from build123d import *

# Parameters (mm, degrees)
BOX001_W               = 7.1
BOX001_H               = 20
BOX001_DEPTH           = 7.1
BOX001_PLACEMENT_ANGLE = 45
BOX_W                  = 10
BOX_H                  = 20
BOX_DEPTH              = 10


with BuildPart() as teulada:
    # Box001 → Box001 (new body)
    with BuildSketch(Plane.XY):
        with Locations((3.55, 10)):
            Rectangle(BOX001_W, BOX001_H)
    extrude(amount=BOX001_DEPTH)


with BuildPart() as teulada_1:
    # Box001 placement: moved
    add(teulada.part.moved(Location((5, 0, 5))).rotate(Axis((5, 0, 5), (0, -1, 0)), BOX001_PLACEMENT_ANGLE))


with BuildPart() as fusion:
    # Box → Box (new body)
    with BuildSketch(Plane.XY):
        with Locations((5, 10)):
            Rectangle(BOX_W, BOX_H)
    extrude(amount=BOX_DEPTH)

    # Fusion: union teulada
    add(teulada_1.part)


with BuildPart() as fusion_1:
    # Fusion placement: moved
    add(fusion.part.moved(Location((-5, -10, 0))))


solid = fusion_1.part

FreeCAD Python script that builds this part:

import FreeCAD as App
import Part
import Sketcher
from FreeCAD import Vector

doc = App.newDocument("Part")
body = doc.addObject("PartDesign::Body", "Body")

sketch1 = doc.addObject("Sketcher::SketchObject", "Sketch")
body.addObject(sketch1)
sketch1.AttachmentSupport = (doc.XY_Plane, [""])
sketch1.MapMode = "FlatFace"
sketch1.addGeometry([
    Part.LineSegment(Vector(0, 20, 0), Vector(0, 0, 0)),
    Part.LineSegment(Vector(0, 0, 0), Vector(7.1, 0, 0)),
    Part.LineSegment(Vector(7.1, 0, 0), Vector(7.1, 20, 0)),
    Part.LineSegment(Vector(7.1, 20, 0), Vector(0, 20, 0)),
], False)
sketch1.addConstraint([
    Sketcher.Constraint("Coincident", 0, 2, 1, 1),
    Sketcher.Constraint("Coincident", 1, 2, 2, 1),
    Sketcher.Constraint("Coincident", 2, 2, 3, 1),
    Sketcher.Constraint("Coincident", 3, 2, 0, 1),
    Sketcher.Constraint("Vertical", 0),
    Sketcher.Constraint("Horizontal", 1),
    Sketcher.Constraint("Vertical", 2),
    Sketcher.Constraint("Horizontal", 3),
    Sketcher.Constraint("Coincident", 0, 2, -1, 1),
    Sketcher.Constraint("DistanceY", 0, 2, 0, 1, 20.0),
    Sketcher.Constraint("DistanceX", 1, 1, 1, 2, 7.1),
])
pad1 = doc.addObject("PartDesign::Pad", "Pad")
body.addObject(pad1)
pad1.Profile = sketch1
pad1.Length = 7.1
body2 = doc.addObject("PartDesign::Body", "Body001")
doc.recompute()

body.Placement = App.Placement(Vector(5, 0, 5), App.Rotation(Vector(0, -1, 0), 45))
boolean = doc.addObject("PartDesign::Boolean", "Boolean")
body2.addObject(boolean)
boolean.Type = "Fuse"
boolean.addObjects([body])
body3 = doc.addObject("PartDesign::Body", "Body002")

sketch2 = doc.addObject("Sketcher::SketchObject", "Sketch001")
body3.addObject(sketch2)
sketch2.AttachmentSupport = (doc.getObject("XY_Plane002"), [""])
sketch2.MapMode = "FlatFace"
sketch2.addGeometry([
    Part.LineSegment(Vector(0, 20, 0), Vector(0, 0, 0)),
    Part.LineSegment(Vector(0, 0, 0), Vector(10, 0, 0)),
    Part.LineSegment(Vector(10, 0, 0), Vector(10, 20, 0)),
    Part.LineSegment(Vector(10, 20, 0), Vector(0, 20, 0)),
], False)
sketch2.addConstraint([
    Sketcher.Constraint("Coincident", 0, 2, 1, 1),
    Sketcher.Constraint("Coincident", 1, 2, 2, 1),
    Sketcher.Constraint("Coincident", 2, 2, 3, 1),
    Sketcher.Constraint("Coincident", 3, 2, 0, 1),
    Sketcher.Constraint("Vertical", 0),
    Sketcher.Constraint("Horizontal", 1),
    Sketcher.Constraint("Vertical", 2),
    Sketcher.Constraint("Horizontal", 3),
    Sketcher.Constraint("Coincident", 0, 2, -1, 1),
    Sketcher.Constraint("DistanceX", 1, 1, 1, 2, 10.0),
    Sketcher.Constraint("DistanceY", 0, 2, 0, 1, 20.0),
])
pad2 = doc.addObject("PartDesign::Pad", "Pad001")
body3.addObject(pad2)
pad2.Profile = sketch2
pad2.Length = 10
doc.recompute()

boolean2 = doc.addObject("PartDesign::Boolean", "Boolean001")
body3.addObject(boolean2)
boolean2.Type = "Fuse"
boolean2.addObjects([body2])
body4 = doc.addObject("PartDesign::Body", "Body003")
doc.recompute()

body3.Placement = App.Placement(Vector(-5, -10, 0), App.Rotation(Vector(0, 0, 1), 0))
boolean3 = doc.addObject("PartDesign::Boolean", "Boolean002")
body4.addObject(boolean3)
boolean3.Type = "Fuse"
boolean3.addObjects([body3])

doc.recompute()
